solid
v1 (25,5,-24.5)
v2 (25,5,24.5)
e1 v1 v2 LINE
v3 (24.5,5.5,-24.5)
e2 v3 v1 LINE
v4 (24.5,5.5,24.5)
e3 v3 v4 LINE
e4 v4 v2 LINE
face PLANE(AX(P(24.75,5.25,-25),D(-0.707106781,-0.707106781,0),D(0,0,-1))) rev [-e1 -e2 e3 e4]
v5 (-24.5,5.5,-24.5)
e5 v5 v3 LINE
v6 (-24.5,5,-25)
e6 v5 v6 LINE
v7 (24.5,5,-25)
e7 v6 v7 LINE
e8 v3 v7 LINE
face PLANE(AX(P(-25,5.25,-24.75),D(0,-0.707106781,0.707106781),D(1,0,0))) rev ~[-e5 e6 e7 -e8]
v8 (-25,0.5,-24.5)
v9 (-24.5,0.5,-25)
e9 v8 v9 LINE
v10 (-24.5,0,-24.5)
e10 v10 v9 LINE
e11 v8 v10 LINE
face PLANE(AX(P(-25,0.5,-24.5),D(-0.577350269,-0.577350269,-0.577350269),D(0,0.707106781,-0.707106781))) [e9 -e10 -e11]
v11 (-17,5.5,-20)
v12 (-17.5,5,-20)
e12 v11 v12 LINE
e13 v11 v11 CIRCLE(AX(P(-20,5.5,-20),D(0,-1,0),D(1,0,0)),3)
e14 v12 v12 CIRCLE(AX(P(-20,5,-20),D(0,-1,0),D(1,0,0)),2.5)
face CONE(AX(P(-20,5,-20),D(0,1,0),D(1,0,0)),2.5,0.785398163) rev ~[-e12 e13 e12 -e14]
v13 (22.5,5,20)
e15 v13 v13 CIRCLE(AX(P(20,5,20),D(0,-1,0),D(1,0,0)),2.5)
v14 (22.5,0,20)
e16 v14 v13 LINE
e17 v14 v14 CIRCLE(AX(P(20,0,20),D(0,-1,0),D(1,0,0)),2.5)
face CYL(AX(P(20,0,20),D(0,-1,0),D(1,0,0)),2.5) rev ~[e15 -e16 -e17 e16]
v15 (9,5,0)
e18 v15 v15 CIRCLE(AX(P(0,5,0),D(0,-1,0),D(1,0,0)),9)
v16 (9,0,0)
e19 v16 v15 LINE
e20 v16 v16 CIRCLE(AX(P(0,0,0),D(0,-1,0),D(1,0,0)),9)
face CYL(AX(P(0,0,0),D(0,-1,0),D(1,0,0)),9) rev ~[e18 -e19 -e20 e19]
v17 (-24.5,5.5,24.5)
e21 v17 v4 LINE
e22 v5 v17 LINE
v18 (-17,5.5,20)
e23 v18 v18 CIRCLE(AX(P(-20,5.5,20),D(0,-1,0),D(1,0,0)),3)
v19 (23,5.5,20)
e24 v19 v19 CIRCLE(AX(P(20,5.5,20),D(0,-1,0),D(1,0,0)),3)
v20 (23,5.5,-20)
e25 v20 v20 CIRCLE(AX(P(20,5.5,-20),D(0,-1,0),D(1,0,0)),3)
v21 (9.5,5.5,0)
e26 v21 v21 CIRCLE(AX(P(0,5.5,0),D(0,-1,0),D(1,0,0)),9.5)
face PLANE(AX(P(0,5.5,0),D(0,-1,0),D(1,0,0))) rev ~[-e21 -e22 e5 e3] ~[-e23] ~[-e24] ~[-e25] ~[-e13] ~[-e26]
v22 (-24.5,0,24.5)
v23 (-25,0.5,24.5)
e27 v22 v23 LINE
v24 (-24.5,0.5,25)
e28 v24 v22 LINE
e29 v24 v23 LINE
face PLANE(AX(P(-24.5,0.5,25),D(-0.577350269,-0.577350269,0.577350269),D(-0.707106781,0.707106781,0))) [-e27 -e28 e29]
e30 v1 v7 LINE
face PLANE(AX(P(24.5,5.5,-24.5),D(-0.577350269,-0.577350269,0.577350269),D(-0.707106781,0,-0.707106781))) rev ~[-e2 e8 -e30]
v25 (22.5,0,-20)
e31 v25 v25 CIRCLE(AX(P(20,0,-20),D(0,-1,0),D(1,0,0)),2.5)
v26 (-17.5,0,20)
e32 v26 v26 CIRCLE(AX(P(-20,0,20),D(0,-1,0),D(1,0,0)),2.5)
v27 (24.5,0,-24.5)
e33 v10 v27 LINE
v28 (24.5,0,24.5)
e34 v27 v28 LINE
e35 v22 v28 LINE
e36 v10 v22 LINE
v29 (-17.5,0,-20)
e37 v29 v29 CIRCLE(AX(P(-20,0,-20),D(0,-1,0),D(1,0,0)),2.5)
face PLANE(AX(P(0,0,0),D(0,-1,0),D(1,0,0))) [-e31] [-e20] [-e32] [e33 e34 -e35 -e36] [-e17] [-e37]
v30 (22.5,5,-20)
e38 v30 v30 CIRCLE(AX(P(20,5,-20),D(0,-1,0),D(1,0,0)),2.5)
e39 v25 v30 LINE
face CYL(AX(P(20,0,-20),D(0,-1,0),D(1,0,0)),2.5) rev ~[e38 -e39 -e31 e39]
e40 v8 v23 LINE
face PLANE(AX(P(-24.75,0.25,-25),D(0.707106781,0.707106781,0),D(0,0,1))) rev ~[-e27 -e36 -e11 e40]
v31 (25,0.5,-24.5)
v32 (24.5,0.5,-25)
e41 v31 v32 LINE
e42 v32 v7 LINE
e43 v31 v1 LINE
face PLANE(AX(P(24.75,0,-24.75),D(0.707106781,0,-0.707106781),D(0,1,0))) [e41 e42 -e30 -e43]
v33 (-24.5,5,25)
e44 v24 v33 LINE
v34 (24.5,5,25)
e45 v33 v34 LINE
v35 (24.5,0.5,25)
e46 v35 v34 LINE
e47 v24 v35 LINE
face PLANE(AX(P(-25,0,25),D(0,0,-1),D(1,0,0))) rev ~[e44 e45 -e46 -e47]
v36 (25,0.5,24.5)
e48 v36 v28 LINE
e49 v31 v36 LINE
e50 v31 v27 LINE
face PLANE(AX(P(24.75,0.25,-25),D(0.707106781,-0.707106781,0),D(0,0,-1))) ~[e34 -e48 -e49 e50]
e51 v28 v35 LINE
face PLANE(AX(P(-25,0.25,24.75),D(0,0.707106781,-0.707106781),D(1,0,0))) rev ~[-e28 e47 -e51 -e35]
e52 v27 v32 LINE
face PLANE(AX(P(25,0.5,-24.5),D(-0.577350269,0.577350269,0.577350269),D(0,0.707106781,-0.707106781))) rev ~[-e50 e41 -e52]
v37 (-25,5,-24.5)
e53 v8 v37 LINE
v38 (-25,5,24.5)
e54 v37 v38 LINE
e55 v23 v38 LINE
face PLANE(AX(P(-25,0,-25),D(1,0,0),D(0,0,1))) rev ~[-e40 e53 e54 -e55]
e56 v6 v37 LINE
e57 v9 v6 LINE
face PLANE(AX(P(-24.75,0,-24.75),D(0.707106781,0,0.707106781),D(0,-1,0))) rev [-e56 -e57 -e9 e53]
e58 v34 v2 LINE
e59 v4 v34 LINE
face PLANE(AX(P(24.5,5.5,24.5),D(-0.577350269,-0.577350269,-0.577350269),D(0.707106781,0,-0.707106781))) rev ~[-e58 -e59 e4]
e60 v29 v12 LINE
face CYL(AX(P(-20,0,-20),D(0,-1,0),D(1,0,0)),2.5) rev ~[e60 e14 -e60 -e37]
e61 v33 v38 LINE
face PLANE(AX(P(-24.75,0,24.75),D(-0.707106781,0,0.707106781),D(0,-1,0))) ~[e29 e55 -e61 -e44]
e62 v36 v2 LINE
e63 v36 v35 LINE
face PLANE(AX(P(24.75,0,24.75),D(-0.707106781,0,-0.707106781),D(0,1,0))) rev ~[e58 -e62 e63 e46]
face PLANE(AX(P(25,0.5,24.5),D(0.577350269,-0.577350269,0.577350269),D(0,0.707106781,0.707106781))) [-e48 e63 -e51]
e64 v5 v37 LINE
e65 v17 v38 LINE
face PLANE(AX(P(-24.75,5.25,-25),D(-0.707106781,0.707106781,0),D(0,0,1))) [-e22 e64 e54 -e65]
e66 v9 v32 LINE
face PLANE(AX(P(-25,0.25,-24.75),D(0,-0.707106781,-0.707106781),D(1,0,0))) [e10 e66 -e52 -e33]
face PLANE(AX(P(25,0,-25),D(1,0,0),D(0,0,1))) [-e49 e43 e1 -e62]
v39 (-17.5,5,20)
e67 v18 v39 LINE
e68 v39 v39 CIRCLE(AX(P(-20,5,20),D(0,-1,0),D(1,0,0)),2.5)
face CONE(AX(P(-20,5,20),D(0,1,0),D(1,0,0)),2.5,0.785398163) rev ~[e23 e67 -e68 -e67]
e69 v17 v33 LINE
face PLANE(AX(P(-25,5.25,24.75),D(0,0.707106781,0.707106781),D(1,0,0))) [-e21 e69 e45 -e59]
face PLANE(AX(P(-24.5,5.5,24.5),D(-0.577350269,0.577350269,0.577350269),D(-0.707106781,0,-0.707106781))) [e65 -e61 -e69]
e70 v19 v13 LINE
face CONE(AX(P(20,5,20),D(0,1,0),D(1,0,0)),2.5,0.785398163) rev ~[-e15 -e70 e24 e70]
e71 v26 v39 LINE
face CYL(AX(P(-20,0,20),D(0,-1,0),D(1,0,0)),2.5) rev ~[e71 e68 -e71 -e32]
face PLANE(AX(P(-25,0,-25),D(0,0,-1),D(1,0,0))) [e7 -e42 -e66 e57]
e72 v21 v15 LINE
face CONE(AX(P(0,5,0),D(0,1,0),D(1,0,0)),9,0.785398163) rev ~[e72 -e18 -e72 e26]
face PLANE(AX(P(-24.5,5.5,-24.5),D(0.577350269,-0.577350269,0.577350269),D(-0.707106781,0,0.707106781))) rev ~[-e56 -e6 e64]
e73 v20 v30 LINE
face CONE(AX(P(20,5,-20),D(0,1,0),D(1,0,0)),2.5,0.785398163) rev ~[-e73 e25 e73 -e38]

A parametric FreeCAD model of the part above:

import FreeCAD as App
import Part
import Sketcher


def edges_at(feature, points):
    """Names of the edges that pass closest to the given points."""
    edges = feature.Shape.Edges
    near = lambda p: min(range(len(edges)), key=lambda i: edges[i].distToShape(Part.Vertex(*p))[0])
    return sorted({f"Edge{near(p) + 1}" for p in points})


def add_polygon(sketch, points):
    """Adds a closed chain of lines whose ends are joined by coincident constraints."""
    first, n = sketch.GeometryCount, len(points)
    for a, b in zip(points, points[1:] + points[:1]):
        sketch.addGeometry(Part.LineSegment(App.Vector(*a, 0), App.Vector(*b, 0)), False)
    for i in range(n):
        sketch.addConstraint(Sketcher.Constraint("Coincident", first + i, 2, first + (i + 1) % n, 1))

doc = App.newDocument("Part")
body = doc.addObject("PartDesign::Body", "Body")

sketch1 = body.newObject("Sketcher::SketchObject", "Sketch")
sketch1.AttachmentSupport = (doc.getObject("XZ_Plane"), [""])
sketch1.MapMode = "FlatFace"
add_polygon(sketch1, [(-25, 25), (-25, -25), (25, -25), (25, 25)])
sketch1.addConstraint([
    Sketcher.Constraint("Vertical", 0),
    Sketcher.Constraint("Horizontal", 1),
    Sketcher.Constraint("Vertical", 2),
    Sketcher.Constraint("Horizontal", 3),
    Sketcher.Constraint("Symmetric", 0, 2, 2, 2, -1, 1),
    Sketcher.Constraint("Equal", 3, 0),
    Sketcher.Constraint("DistanceX", 1, 1, 1, 2, 50.0),
])
pad1 = body.newObject("PartDesign::Pad", "Pad")
pad1.Profile = sketch1
pad1.Length = 5.5
pad1.Reversed = True

sketch2 = body.newObject("Sketcher::SketchObject", "Sketch001")
sketch2.AttachmentSupport = (doc.getObject("XZ_Plane"), [""])
sketch2.MapMode = "FlatFace"
sketch2.addGeometry(Part.Circle(App.Vector(0, 0, 0), App.Vector(0, 0, 1), 9), False)
sketch2.addConstraint([
    Sketcher.Constraint("Coincident", 0, 3, -1, 1),
    Sketcher.Constraint("Diameter", 0, 18.0),
])
pocket1 = body.newObject("PartDesign::Pocket", "Pocket")
pocket1.Profile = sketch2
pocket1.Length = 25

sketch3 = body.newObject("Sketcher::SketchObject", "Sketch002")
sketch3.AttachmentSupport = (doc.getObject("XZ_Plane"), [""])
sketch3.MapMode = "FlatFace"
sketch3.addGeometry([
    Part.Circle(App.Vector(-20, -20, 0), App.Vector(0, 0, 1), 2.5),
    Part.Circle(App.Vector(20, -20, 0), App.Vector(0, 0, 1), 2.5),
    Part.Circle(App.Vector(-20, 20, 0), App.Vector(0, 0, 1), 2.5),
    Part.Circle(App.Vector(20, 20, 0), App.Vector(0, 0, 1), 2.5),
], False)
sketch3.addConstraint([
    Sketcher.Constraint("Equal", 0, 1),
    Sketcher.Constraint("Equal", 1, 2),
    Sketcher.Constraint("Equal", 2, 3),
    Sketcher.Constraint("Symmetric", 1, 3, 2, 3, -1, 1),
    Sketcher.Constraint("Symmetric", 0, 3, 3, 3, -1, 1),
    Sketcher.Constraint("Symmetric", 0, 3, 1, 3, -2),
    Sketcher.Constraint("Diameter", 0, 5.0),
    Sketcher.Constraint("DistanceX", 0, 3, -1, 1, 20.0),
    Sketcher.Constraint("DistanceY", 0, 3, -1, 1, 20.0),
])
pocket2 = body.newObject("PartDesign::Pocket", "Pocket001")
pocket2.Profile = sketch3
pocket2.Length = 25
doc.recompute()

chamfer = body.newObject("PartDesign::Chamfer", "Chamfer")
chamfer.Base = (pocket2, edges_at(pocket2, [
    (0, 0, -25),
    (-25, 0, 0),
    (0, 0, 25),
    (25, 0, 0),
    (25, 2.75, -25),
    (-25, 2.75, -25),
    (-25, 2.75, 25),
    (25, 2.75, 25),
    (0, 5.5, 25),
    (25, 5.5, 0),
    (0, 5.5, -25),
    (-25, 5.5, 0),
    (-22.5, 5.5, -20),
    (17.5, 5.5, -20),
    (-22.5, 5.5, 20),
    (-9, 5.5, 0),
    (17.5, 5.5, 20),
]))
chamfer.Size = 0.5

doc.recompute()
